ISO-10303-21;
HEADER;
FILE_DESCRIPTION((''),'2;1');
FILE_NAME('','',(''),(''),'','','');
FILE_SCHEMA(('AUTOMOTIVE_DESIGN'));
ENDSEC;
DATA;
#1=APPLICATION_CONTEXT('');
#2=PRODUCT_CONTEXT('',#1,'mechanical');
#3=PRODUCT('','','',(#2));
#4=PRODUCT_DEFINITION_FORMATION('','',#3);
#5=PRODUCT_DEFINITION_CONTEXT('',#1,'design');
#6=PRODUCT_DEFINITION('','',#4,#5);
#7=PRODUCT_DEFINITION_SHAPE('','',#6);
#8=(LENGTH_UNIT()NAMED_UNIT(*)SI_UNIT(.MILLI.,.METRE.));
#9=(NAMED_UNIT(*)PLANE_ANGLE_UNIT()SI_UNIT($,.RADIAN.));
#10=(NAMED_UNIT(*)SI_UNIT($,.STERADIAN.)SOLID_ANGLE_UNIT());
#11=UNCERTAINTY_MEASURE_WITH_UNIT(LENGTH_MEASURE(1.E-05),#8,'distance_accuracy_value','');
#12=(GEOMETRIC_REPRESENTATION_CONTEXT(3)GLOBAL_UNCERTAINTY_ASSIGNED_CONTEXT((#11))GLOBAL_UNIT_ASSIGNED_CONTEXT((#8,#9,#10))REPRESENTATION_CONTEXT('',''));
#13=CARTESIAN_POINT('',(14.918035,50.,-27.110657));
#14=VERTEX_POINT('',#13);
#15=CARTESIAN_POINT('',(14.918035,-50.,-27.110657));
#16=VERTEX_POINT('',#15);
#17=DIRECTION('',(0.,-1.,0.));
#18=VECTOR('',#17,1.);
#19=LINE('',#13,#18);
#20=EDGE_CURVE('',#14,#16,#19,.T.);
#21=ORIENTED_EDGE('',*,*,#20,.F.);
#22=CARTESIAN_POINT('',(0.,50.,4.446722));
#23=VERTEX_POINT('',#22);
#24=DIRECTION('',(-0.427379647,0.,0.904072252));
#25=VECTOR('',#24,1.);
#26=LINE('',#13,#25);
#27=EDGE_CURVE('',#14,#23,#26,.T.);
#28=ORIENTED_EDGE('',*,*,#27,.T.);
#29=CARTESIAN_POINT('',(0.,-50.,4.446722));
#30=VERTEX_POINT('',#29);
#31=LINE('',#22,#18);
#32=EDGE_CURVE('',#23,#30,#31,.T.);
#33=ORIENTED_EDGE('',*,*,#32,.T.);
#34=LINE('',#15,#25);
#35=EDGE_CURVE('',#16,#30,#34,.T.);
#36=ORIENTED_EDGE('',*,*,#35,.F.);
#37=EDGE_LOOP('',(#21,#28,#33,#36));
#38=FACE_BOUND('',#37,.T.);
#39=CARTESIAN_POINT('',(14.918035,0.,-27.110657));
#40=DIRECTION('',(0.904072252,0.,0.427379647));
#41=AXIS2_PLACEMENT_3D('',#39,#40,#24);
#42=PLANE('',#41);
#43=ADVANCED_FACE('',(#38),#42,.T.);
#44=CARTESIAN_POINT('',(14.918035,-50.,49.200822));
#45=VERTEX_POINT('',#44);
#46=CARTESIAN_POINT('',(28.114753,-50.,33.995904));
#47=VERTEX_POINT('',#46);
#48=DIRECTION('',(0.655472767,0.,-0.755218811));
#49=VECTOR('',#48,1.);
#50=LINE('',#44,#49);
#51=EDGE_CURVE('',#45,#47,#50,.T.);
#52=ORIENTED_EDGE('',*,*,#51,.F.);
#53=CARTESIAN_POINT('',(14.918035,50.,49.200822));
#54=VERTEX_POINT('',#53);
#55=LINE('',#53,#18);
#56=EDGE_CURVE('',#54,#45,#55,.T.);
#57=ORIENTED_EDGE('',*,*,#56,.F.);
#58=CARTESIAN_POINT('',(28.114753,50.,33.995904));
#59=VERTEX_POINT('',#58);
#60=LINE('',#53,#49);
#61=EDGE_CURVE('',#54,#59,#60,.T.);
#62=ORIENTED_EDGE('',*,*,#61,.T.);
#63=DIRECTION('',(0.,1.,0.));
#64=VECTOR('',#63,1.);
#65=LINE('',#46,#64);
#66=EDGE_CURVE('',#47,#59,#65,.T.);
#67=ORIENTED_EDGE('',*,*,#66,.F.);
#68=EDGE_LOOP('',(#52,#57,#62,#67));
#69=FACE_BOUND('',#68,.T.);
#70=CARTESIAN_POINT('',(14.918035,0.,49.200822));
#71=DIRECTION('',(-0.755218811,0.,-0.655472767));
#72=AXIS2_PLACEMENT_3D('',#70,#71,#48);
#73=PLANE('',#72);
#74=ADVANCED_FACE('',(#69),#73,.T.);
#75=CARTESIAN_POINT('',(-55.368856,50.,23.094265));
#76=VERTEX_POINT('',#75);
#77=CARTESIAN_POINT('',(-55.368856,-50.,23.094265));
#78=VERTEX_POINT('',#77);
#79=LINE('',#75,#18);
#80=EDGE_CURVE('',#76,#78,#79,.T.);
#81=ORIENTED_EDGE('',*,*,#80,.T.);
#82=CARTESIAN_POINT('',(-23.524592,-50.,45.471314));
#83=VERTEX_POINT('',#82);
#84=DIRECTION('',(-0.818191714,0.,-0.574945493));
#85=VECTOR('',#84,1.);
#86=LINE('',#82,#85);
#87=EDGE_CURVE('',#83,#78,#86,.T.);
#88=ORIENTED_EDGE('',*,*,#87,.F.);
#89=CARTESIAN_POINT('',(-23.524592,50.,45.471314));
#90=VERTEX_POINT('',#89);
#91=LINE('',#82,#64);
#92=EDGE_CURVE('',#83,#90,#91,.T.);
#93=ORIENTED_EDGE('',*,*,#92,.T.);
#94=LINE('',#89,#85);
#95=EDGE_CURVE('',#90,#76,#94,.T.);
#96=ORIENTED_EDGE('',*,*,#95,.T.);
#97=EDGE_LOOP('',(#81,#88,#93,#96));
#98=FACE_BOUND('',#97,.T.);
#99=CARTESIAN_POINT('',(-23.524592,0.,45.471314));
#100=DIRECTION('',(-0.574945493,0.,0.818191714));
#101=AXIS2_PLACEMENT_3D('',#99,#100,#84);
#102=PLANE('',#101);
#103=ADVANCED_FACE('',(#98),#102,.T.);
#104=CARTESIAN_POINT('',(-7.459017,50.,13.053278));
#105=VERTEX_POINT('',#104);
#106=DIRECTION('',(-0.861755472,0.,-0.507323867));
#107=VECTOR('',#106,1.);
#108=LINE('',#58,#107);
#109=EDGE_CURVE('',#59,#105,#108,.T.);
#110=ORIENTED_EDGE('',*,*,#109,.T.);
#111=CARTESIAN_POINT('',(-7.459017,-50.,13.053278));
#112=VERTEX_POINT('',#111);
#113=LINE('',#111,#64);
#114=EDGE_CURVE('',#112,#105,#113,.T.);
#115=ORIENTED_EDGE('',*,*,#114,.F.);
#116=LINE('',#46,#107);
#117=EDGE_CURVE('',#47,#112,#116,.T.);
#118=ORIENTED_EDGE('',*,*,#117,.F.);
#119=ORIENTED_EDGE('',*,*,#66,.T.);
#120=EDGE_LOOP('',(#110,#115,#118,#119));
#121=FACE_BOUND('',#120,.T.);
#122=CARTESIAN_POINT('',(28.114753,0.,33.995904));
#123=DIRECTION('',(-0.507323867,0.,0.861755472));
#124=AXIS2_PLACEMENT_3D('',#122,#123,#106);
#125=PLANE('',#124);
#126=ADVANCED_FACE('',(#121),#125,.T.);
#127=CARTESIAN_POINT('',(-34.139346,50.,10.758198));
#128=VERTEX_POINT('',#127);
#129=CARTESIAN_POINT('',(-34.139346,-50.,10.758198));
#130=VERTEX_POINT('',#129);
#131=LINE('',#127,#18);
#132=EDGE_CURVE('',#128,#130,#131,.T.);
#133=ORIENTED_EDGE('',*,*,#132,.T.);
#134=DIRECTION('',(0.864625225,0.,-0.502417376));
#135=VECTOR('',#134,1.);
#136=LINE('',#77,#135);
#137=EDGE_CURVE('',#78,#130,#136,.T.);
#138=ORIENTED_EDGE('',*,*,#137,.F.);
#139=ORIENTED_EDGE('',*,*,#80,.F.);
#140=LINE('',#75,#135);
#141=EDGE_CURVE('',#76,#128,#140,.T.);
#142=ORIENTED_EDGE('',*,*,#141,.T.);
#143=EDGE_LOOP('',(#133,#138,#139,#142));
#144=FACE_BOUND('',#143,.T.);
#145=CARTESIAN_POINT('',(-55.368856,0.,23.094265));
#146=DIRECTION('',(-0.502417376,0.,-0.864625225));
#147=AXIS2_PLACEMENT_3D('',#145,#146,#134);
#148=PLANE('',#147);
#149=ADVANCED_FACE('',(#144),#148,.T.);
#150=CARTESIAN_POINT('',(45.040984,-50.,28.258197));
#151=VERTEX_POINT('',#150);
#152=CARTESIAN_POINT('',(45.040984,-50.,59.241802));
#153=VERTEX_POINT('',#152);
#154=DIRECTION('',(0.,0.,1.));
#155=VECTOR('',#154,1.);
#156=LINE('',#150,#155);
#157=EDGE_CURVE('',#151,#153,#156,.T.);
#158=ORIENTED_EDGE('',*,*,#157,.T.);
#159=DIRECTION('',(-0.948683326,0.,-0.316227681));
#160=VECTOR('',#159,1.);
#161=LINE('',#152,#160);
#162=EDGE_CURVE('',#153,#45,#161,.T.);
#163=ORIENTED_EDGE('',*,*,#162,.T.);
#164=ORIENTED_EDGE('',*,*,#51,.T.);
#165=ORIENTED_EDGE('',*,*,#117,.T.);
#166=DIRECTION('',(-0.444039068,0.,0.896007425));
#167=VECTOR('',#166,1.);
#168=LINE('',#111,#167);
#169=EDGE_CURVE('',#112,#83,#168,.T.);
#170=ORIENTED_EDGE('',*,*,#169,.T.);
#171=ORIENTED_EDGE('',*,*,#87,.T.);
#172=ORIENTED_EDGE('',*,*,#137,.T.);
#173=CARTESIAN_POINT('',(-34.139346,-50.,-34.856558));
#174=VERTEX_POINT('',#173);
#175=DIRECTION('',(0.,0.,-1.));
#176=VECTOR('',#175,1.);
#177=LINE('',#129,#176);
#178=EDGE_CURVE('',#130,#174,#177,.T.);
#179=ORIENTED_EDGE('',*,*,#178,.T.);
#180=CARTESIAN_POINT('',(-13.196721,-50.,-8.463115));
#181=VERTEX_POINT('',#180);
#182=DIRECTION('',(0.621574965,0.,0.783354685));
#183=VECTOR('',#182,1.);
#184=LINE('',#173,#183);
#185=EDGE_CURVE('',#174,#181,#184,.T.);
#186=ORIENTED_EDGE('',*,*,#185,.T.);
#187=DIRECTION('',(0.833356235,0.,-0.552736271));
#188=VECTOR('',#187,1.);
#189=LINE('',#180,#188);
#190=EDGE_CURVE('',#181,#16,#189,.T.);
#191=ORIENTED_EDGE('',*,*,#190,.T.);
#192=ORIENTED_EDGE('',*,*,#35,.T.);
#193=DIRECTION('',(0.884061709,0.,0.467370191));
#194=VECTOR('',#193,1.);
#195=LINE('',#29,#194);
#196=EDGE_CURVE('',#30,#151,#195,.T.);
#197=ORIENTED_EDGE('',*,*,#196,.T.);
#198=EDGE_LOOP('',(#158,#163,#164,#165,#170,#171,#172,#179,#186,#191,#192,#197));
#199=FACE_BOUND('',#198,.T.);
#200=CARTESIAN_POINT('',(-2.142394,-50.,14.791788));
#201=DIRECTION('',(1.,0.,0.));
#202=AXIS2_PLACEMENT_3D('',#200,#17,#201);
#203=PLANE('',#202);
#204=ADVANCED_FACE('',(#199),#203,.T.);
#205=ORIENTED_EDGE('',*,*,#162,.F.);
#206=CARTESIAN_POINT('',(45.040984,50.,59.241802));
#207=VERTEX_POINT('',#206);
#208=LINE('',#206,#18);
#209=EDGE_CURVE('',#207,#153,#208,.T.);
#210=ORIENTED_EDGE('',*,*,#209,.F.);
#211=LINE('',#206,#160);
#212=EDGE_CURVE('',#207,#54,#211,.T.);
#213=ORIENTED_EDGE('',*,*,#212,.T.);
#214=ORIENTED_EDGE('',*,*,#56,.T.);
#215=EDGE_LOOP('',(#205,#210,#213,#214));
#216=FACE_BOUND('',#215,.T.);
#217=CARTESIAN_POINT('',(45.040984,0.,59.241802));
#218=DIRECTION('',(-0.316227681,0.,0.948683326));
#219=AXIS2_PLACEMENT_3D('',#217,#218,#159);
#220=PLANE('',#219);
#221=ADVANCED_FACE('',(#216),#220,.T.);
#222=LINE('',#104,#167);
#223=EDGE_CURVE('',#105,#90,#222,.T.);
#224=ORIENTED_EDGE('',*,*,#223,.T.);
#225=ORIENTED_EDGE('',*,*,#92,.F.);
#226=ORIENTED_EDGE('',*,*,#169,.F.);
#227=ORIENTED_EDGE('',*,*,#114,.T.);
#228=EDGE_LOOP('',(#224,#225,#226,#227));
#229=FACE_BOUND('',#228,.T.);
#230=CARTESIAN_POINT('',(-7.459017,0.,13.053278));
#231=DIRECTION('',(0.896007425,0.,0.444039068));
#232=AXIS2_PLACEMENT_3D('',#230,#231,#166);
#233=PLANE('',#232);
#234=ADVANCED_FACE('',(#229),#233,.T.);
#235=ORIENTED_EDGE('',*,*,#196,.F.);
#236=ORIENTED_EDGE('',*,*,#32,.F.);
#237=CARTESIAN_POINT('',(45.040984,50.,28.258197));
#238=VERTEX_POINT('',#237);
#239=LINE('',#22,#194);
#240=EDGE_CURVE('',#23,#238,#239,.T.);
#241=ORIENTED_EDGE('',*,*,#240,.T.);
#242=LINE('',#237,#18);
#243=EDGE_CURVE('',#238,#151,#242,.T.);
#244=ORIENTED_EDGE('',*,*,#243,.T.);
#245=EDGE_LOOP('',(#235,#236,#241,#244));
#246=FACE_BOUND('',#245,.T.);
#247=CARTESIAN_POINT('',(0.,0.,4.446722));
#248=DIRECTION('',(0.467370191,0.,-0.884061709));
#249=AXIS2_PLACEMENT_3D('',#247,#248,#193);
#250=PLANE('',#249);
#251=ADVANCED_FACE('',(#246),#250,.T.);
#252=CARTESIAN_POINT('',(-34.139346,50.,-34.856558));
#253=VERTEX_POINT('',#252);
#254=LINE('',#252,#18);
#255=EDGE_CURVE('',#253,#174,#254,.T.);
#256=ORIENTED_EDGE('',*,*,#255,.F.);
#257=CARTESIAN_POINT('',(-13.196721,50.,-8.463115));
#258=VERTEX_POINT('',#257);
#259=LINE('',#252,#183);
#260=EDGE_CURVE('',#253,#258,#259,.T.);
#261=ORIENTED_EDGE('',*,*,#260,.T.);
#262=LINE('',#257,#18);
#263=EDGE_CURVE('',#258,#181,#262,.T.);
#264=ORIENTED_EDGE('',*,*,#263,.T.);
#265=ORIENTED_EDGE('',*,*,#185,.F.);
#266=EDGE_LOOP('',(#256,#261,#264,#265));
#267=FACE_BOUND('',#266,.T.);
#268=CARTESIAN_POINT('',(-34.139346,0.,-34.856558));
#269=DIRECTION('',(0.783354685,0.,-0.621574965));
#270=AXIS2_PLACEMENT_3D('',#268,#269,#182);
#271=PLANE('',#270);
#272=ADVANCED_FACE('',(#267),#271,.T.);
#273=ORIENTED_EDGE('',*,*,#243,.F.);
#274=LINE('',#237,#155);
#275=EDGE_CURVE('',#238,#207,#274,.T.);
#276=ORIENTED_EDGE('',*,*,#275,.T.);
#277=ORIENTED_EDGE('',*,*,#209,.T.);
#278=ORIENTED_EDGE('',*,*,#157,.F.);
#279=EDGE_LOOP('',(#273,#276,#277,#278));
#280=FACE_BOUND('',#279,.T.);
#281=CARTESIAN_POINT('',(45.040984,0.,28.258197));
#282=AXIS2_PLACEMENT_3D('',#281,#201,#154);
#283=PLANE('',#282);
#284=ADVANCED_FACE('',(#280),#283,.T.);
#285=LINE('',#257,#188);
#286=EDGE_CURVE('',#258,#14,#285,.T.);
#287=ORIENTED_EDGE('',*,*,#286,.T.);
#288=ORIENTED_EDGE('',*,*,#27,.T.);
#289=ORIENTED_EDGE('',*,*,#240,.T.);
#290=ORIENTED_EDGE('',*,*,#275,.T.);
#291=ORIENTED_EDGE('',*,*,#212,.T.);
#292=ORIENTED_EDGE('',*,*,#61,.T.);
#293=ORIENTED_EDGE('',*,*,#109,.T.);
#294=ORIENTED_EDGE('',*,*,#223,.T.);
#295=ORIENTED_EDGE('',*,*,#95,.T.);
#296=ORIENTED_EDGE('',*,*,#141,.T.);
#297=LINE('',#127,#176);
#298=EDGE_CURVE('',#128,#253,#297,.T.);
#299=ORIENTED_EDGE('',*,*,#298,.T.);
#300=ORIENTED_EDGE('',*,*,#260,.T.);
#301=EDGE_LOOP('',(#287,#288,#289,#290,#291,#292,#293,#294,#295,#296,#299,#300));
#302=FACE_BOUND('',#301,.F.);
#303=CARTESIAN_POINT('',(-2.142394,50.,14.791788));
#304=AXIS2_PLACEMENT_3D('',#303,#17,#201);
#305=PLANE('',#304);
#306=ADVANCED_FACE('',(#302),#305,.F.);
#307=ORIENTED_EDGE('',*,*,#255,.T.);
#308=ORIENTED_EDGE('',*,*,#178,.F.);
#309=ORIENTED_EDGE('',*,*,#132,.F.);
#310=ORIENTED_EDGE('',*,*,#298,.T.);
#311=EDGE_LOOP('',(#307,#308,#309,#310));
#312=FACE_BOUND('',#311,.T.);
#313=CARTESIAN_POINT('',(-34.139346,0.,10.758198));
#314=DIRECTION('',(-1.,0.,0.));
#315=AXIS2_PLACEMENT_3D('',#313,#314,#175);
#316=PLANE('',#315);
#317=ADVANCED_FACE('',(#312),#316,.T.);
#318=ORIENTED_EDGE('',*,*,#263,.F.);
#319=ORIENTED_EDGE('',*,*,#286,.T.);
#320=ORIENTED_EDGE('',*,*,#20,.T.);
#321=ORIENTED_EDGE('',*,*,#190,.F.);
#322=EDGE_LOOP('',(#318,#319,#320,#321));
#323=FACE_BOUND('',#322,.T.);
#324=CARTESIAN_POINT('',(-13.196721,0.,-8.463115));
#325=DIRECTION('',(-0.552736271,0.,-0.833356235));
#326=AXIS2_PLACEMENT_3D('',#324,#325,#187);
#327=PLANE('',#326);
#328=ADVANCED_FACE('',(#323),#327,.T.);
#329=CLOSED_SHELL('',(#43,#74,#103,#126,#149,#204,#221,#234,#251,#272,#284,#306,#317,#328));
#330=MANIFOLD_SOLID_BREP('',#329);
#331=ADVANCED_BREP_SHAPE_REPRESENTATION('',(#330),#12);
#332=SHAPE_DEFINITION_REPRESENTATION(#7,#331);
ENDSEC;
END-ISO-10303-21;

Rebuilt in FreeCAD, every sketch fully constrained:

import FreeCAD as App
import Part
import Sketcher

V = App.Vector


def add_polygon(sketch, points):
    """Adds a closed chain of lines whose ends are joined by coincident constraints."""
    first, n = sketch.GeometryCount, len(points)
    for a, b in zip(points, points[1:] + points[:1]):
        sketch.addGeometry(Part.LineSegment(App.Vector(*a, 0), App.Vector(*b, 0)), False)
    for i in range(n):
        sketch.addConstraint(Sketcher.Constraint("Coincident", first + i, 2, first + (i + 1) % n, 1))

doc = App.newDocument("Part")
body = doc.addObject("PartDesign::Body", "Body")

sketch1 = doc.addObject("Sketcher::SketchObject", "Sketch")
body.addObject(sketch1)
sketch1.AttachmentSupport = (doc.XZ_Plane, [""])
sketch1.MapMode = "FlatFace"
add_polygon(sketch1, [(-24, 45), (-55, 23), (-34, 11), (-34, -35), (-13, -8), (15, -27), (0, 4), (45, 28), (45, 59), (15, 49), (28, 34), (-7, 13)])
sketch1.addConstraint([
    Sketcher.Constraint("Vertical", 2),
    Sketcher.Constraint("Vertical", 7),
    Sketcher.Constraint("PointOnObject", 5, 2, -2),
    Sketcher.Constraint("Vertical", 4, 2, 8, 2),
    Sketcher.Constraint("DistanceY", 1, 2, 6, 2, 17.499999),
    Sketcher.Constraint("DistanceY", 2, 2, 4, 2, 7.745901),
    Sketcher.Constraint("DistanceY", 5, 2, 8, 2, 44.7541),
    Sketcher.Constraint("Distance", 3, 33.692839),
    Sketcher.Constraint("Distance", 4, 33.73678),
    Sketcher.Constraint("Distance", 9, 20.133129),
    Sketcher.Constraint("DistanceY", 2, 2, 2, 1, 45.614756),
    Sketcher.Constraint("DistanceY", 7, 1, 7, 2, 30.983605),
    Sketcher.Constraint("DistanceX", 3, 2, -1, 1, 13.196721),
    Sketcher.Constraint("DistanceX", 11, 2, -1, 1, 23.524592),
    Sketcher.Constraint("DistanceX", 0, 2, 1, 2, 21.22951),
    Sketcher.Constraint("DistanceY", 3, 2, 0, 2, 31.55738),
    Sketcher.Constraint("DistanceX", 2, 2, 4, 2, 49.057381),
    Sketcher.Constraint("DistanceY", 4, 2, 5, 2, 31.557379),
    Sketcher.Constraint("DistanceX", 4, 2, 6, 2, 30.122949),
    Sketcher.Constraint("DistanceX", 9, 2, 6, 2, 16.926231),
    Sketcher.Constraint("DistanceX", 1, 2, 10, 2, 26.680329),
    Sketcher.Constraint("DistanceY", 1, 2, 10, 2, 2.29508),
    Sketcher.Constraint("DistanceY", 11, 2, 8, 2, 3.729508),
    Sketcher.Constraint("DistanceY", -1, 1, 0, 2, 23.094265),
])
pad1 = doc.addObject("PartDesign::Pad", "Pad")
body.addObject(pad1)
pad1.Profile = sketch1
pad1.Length = 100
pad1.Midplane = True

doc.recompute()
